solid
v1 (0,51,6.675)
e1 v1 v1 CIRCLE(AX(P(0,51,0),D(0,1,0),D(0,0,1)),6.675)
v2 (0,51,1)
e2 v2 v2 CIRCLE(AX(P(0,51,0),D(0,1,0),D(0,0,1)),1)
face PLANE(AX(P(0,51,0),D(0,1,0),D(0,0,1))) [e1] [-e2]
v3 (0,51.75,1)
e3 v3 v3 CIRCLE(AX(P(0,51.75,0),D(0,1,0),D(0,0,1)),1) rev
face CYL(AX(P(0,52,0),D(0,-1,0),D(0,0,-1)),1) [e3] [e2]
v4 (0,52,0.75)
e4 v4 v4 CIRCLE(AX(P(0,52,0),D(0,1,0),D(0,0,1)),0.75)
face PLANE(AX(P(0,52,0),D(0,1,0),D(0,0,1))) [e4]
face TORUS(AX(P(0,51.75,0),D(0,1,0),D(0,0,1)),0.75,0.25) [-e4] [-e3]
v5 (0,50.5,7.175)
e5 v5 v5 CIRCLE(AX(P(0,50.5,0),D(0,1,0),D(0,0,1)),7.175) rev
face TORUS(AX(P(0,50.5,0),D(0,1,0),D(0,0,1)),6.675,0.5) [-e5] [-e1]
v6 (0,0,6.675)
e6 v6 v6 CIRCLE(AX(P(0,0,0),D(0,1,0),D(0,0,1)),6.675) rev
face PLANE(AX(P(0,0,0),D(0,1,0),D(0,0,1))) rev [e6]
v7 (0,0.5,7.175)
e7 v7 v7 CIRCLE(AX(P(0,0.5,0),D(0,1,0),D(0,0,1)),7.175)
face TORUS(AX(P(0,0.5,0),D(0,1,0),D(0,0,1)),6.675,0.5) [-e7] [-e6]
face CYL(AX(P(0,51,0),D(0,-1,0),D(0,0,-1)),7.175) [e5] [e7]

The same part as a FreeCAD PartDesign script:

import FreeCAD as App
import Part
import Sketcher

V = App.Vector
Q = App.Units.Quantity


def edges_at(feature, points):
    """Names of the edges that pass closest to the given points."""
    edges = feature.Shape.Edges
    near = lambda p: min(range(len(edges)), key=lambda i: edges[i].distToShape(Part.Vertex(*p))[0])
    return sorted({f"Edge{near(p) + 1}" for p in points})

doc = App.newDocument("Part")
params = doc.addObject("Spreadsheet::Sheet", "Params")
for row, (alias, value) in enumerate([
    ("sketch1_diameter", "14.35 mm"),
    ("pad1_length", "51 mm"),
    ("fillet_radius", "0.5 mm"),
    ("sketch2_diameter", "2 mm"),
    ("pad2_length", "1 mm"),
    ("fillet2_radius", "0.25 mm"),
], start=1):
    params.set(f"A{row}", alias)
    params.set(f"B{row}", "=" + value)
    params.setAlias(f"B{row}", alias)

body = doc.addObject("PartDesign::Body", "Body")

# Sketch on XZ plane
sketch1 = body.newObject("Sketcher::SketchObject", "Sketch")
sketch1.AttachmentSupport = (doc.getObject("XZ_Plane"), [""])
sketch1.MapMode = "FlatFace"
sketch1.addGeometry(Part.Circle(V(0, 0, 0), V(0, 0, 1), 7), False)
sketch1.addConstraint([
    Sketcher.Constraint("Coincident", 0, 3, -1, 1),
    Sketcher.Constraint("Diameter", 0, Q("14.35 mm")),
])
sketch1.setExpression("Constraints[1]", "Params.sketch1_diameter")
pad1 = body.newObject("PartDesign::Pad", "Pad")
pad1.Profile = sketch1
pad1.setExpression("Length", "Params.pad1_length")
pad1.Reversed = True
doc.recompute()

fillet = body.newObject("PartDesign::Fillet", "Fillet")
fillet.Base = (pad1, edges_at(pad1, [(-7.175, 0, 0), (-7.175, 51, 0)]))
fillet.setExpression("Radius", "Params.fillet_radius")

# Sketch on XZ plane
sketch2 = body.newObject("Sketcher::SketchObject", "Sketch001")
sketch2.AttachmentSupport = (doc.getObject("XZ_Plane"), [""])
sketch2.MapMode = "FlatFace"
sketch2.AttachmentOffset = App.Placement(V(0, 0, -51), App.Rotation())
sketch2.addGeometry(Part.Circle(V(0, 0, 0), V(0, 0, 1), 1), False)
sketch2.addConstraint([
    Sketcher.Constraint("Coincident", 0, 3, -1, 1),
    Sketcher.Constraint("Diameter", 0, Q("2 mm")),
])
sketch2.setExpression("Constraints[1]", "Params.sketch2_diameter")
pad2 = body.newObject("PartDesign::Pad", "Pad001")
pad2.Profile = sketch2
pad2.setExpression("Length", "Params.pad2_length")
pad2.Reversed = True
doc.recompute()

fillet2 = body.newObject("PartDesign::Fillet", "Fillet001")
fillet2.Base = (pad2, edges_at(pad2, [(-1, 52, 0)]))
fillet2.setExpression("Radius", "Params.fillet2_radius")

doc.recompute()
